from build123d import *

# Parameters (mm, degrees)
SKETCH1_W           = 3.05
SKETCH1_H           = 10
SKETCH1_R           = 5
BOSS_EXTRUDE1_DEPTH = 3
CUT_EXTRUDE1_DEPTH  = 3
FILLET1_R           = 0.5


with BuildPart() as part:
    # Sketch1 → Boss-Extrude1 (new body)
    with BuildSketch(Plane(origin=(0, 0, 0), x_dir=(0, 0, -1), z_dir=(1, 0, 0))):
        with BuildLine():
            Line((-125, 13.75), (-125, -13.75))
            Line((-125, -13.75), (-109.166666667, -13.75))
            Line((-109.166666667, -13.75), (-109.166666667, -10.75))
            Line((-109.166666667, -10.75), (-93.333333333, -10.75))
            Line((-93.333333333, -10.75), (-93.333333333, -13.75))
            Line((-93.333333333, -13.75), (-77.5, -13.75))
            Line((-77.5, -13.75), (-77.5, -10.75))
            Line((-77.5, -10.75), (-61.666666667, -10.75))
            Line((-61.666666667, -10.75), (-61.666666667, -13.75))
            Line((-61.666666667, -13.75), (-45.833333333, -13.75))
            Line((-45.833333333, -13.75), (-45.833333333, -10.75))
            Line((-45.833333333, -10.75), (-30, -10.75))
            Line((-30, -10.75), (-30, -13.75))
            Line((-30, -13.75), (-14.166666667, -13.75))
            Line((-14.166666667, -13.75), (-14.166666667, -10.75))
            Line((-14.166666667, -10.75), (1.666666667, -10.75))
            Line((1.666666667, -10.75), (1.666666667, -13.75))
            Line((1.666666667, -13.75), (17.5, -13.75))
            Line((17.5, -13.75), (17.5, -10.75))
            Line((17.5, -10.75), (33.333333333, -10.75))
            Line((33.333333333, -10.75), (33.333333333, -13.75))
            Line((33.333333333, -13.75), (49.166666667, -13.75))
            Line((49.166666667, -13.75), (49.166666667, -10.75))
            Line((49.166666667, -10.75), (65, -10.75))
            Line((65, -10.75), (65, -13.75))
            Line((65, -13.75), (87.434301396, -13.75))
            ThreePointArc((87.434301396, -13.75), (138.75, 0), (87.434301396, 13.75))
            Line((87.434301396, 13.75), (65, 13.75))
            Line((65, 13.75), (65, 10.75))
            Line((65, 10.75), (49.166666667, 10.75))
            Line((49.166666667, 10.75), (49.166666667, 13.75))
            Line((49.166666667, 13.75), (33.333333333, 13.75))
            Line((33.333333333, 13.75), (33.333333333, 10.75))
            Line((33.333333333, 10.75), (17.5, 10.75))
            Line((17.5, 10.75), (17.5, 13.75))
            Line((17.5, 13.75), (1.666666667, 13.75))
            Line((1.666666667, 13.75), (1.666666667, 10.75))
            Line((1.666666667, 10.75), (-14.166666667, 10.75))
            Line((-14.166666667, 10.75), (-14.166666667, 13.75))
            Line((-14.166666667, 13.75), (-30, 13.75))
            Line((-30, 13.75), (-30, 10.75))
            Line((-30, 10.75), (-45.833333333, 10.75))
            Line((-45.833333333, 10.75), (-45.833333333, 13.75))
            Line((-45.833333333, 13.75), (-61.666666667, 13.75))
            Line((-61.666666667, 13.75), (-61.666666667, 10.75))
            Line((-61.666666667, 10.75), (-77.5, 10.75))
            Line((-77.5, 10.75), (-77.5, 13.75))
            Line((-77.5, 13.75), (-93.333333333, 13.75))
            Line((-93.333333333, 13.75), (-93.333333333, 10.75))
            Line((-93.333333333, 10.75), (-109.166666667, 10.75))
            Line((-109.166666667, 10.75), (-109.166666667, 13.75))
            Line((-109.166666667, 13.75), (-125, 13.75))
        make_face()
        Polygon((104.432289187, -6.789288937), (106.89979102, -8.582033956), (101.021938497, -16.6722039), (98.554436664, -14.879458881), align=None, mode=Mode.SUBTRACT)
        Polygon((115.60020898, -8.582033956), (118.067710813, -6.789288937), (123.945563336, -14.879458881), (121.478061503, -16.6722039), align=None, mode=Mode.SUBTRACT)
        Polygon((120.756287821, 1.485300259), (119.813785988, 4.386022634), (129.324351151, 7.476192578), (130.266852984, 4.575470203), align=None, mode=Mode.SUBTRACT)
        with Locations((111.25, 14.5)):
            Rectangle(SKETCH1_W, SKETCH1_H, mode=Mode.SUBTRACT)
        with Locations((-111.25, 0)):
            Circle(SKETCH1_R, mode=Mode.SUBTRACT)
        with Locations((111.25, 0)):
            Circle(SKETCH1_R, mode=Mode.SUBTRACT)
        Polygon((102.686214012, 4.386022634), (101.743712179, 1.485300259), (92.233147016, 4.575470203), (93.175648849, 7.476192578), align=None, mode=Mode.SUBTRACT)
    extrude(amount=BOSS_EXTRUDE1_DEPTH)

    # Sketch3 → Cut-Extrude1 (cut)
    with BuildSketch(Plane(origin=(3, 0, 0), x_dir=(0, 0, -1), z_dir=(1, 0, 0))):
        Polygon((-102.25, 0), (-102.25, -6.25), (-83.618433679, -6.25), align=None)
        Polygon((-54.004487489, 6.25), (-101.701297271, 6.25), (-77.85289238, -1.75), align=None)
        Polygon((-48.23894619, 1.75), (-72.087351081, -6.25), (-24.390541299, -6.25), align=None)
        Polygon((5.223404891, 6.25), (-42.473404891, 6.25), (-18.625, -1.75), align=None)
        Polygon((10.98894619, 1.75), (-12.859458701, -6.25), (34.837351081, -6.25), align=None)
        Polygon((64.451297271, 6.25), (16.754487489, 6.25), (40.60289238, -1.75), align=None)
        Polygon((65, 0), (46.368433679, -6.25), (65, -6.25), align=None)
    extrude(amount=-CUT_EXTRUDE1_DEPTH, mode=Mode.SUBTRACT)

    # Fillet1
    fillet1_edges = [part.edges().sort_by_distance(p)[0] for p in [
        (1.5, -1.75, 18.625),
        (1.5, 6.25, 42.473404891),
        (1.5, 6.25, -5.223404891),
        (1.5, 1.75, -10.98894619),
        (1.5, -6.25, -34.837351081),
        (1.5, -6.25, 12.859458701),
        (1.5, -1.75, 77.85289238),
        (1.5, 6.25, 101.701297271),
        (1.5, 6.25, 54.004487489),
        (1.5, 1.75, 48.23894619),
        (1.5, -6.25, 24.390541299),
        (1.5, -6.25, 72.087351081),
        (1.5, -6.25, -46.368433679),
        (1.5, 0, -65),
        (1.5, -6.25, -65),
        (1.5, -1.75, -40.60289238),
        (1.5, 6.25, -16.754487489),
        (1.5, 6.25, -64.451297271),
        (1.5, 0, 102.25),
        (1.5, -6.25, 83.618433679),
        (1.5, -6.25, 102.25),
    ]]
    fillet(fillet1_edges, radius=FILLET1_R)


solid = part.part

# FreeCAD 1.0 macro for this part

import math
import FreeCAD as App
import Part
import Sketcher

V = App.Vector
Q = App.Units.Quantity


def edges_at(feature, points):
    """Names of the edges that pass closest to the given points."""
    edges = feature.Shape.Edges
    near = lambda p: min(range(len(edges)), key=lambda i: edges[i].distToShape(Part.Vertex(*p))[0])
    return sorted({f"Edge{near(p) + 1}" for p in points})


def add_polygon(sketch, points):
    """Adds a closed chain of lines whose ends are joined by coincident constraints."""
    first, n = sketch.GeometryCount, len(points)
    for a, b in zip(points, points[1:] + points[:1]):
        sketch.addGeometry(Part.LineSegment(App.Vector(*a, 0), App.Vector(*b, 0)), False)
    for i in range(n):
        sketch.addConstraint(Sketcher.Constraint("Coincident", first + i, 2, first + (i + 1) % n, 1))

doc = App.newDocument("Part")
params = doc.addObject("Spreadsheet::Sheet", "Params")
for row, (alias, value) in enumerate([
    ("sketch1_diameter", "10 mm"),
    ("sketch1_radius", "27.5 mm"),
    ("sketch1_width", "3 mm"),
    ("sketch1_width2", "10 mm"),
    ("sketch1_length", "10 mm"),
    ("pad1_length", "3 mm"),
    ("sketch2_width", "6.25 mm"),
    ("pocket1_length", "3 mm"),
    ("fillet_radius", "0.5 mm"),
], start=1):
    params.set(f"A{row}", alias)
    params.set(f"B{row}", "=" + value)
    params.setAlias(f"B{row}", alias)

body = doc.addObject("PartDesign::Body", "Body")

# Sketch on YZ plane
sketch1 = doc.addObject("Sketcher::SketchObject", "Sketch")
body.addObject(sketch1)
sketch1.AttachmentSupport = (doc.YZ_Plane, [""])
sketch1.MapMode = "FlatFace"
sketch1.addGeometry(Part.LineSegment(V(13.8, 125, 0), V(-13.8, 125, 0)), False)  # 0
sketch1.addGeometry(Part.LineSegment(V(-13.8, 125, 0), V(-13.8, 109.2, 0)), False)  # 1
sketch1.addGeometry(Part.LineSegment(V(-13.8, 109.2, 0), V(-10.8, 109.2, 0)), False)  # 2
sketch1.addGeometry(Part.LineSegment(V(-10.8, 109.2, 0), V(-10.8, 93.3, 0)), False)  # 3
sketch1.addGeometry(Part.LineSegment(V(-10.8, 93.3, 0), V(-13.8, 93.3, 0)), False)  # 4
sketch1.addGeometry(Part.LineSegment(V(-13.8, 93.3, 0), V(-13.8, 77.5, 0)), False)  # 5
sketch1.addGeometry(Part.LineSegment(V(-13.8, 77.5, 0), V(-10.8, 77.5, 0)), False)  # 6
sketch1.addGeometry(Part.LineSegment(V(-10.8, 77.5, 0), V(-10.8, 61.7, 0)), False)  # 7
sketch1.addGeometry(Part.LineSegment(V(-10.8, 61.7, 0), V(-13.8, 61.7, 0)), False)  # 8
sketch1.addGeometry(Part.LineSegment(V(-13.8, 61.7, 0), V(-13.8, 45.8, 0)), False)  # 9
sketch1.addGeometry(Part.LineSegment(V(-13.8, 45.8, 0), V(-10.8, 45.8, 0)), False)  # 10
sketch1.addGeometry(Part.LineSegment(V(-10.8, 45.8, 0), V(-10.8, 30, 0)), False)  # 11
sketch1.addGeometry(Part.LineSegment(V(-10.8, 30, 0), V(-13.8, 30, 0)), False)  # 12
sketch1.addGeometry(Part.LineSegment(V(-13.8, 30, 0), V(-13.8, 14.2, 0)), False)  # 13
sketch1.addGeometry(Part.LineSegment(V(-13.8, 14.2, 0), V(-10.8, 14.2, 0)), False)  # 14
sketch1.addGeometry(Part.LineSegment(V(-10.8, 14.2, 0), V(-10.8, -1.7, 0)), False)  # 15
sketch1.addGeometry(Part.LineSegment(V(-10.8, -1.7, 0), V(-13.8, -1.7, 0)), False)  # 16
sketch1.addGeometry(Part.LineSegment(V(-13.8, -1.7, 0), V(-13.8, -17.5, 0)), False)  # 17
sketch1.addGeometry(Part.LineSegment(V(-13.8, -17.5, 0), V(-10.8, -17.5, 0)), False)  # 18
sketch1.addGeometry(Part.LineSegment(V(-10.8, -17.5, 0), V(-10.8, -33.3, 0)), False)  # 19
sketch1.addGeometry(Part.LineSegment(V(-10.8, -33.3, 0), V(-13.8, -33.3, 0)), False)  # 20
sketch1.addGeometry(Part.LineSegment(V(-13.8, -33.3, 0), V(-13.8, -49.2, 0)), False)  # 21
sketch1.addGeometry(Part.LineSegment(V(-13.8, -49.2, 0), V(-10.8, -49.2, 0)), False)  # 22
sketch1.addGeometry(Part.LineSegment(V(-10.8, -49.2, 0), V(-10.8, -65, 0)), False)  # 23
sketch1.addGeometry(Part.LineSegment(V(-10.8, -65, 0), V(-13.8, -65, 0)), False)  # 24
sketch1.addGeometry(Part.LineSegment(V(-13.8, -65, 0), V(-13.8, -87.4, 0)), False)  # 25
sketch1.addGeometry(Part.ArcOfCircle(Part.Circle(V(0, -111.2, 0), V(0, 0, 1), 27.5), math.radians(120), math.radians(420)), False)  # 26
sketch1.addGeometry(Part.LineSegment(V(13.8, -87.4, 0), V(13.8, -65, 0)), False)  # 27
sketch1.addGeometry(Part.LineSegment(V(13.8, -65, 0), V(10.8, -65, 0)), False)  # 28
sketch1.addGeometry(Part.LineSegment(V(10.8, -65, 0), V(10.8, -49.2, 0)), False)  # 29
sketch1.addGeometry(Part.LineSegment(V(10.8, -49.2, 0), V(13.8, -49.2, 0)), False)  # 30
sketch1.addGeometry(Part.LineSegment(V(13.8, -49.2, 0), V(13.8, -33.3, 0)), False)  # 31
sketch1.addGeometry(Part.LineSegment(V(13.8, -33.3, 0), V(10.8, -33.3, 0)), False)  # 32
sketch1.addGeometry(Part.LineSegment(V(10.8, -33.3, 0), V(10.8, -17.5, 0)), False)  # 33
sketch1.addGeometry(Part.LineSegment(V(10.8, -17.5, 0), V(13.8, -17.5, 0)), False)  # 34
sketch1.addGeometry(Part.LineSegment(V(13.8, -17.5, 0), V(13.8, -1.7, 0)), False)  # 35
sketch1.addGeometry(Part.LineSegment(V(13.8, -1.7, 0), V(10.8, -1.7, 0)), False)  # 36
sketch1.addGeometry(Part.LineSegment(V(10.8, -1.7, 0), V(10.8, 14.2, 0)), False)  # 37
sketch1.addGeometry(Part.LineSegment(V(10.8, 14.2, 0), V(13.8, 14.2, 0)), False)  # 38
sketch1.addGeometry(Part.LineSegment(V(13.8, 14.2, 0), V(13.8, 30, 0)), False)  # 39
sketch1.addGeometry(Part.LineSegment(V(13.8, 30, 0), V(10.8, 30, 0)), False)  # 40
sketch1.addGeometry(Part.LineSegment(V(10.8, 30, 0), V(10.8, 45.8, 0)), False)  # 41
sketch1.addGeometry(Part.LineSegment(V(10.8, 45.8, 0), V(13.8, 45.8, 0)), False)  # 42
sketch1.addGeometry(Part.LineSegment(V(13.8, 45.8, 0), V(13.8, 61.7, 0)), False)  # 43
sketch1.addGeometry(Part.LineSegment(V(13.8, 61.7, 0), V(10.8, 61.7, 0)), False)  # 44
sketch1.addGeometry(Part.LineSegment(V(10.8, 61.7, 0), V(10.8, 77.5, 0)), False)  # 45
sketch1.addGeometry(Part.LineSegment(V(10.8, 77.5, 0), V(13.8, 77.5, 0)), False)  # 46
sketch1.addGeometry(Part.LineSegment(V(13.8, 77.5, 0), V(13.8, 93.3, 0)), False)  # 47
sketch1.addGeometry(Part.LineSegment(V(13.8, 93.3, 0), V(10.8, 93.3, 0)), False)  # 48
sketch1.addGeometry(Part.LineSegment(V(10.8, 93.3, 0), V(10.8, 109.2, 0)), False)  # 49
sketch1.addGeometry(Part.LineSegment(V(10.8, 109.2, 0), V(13.8, 109.2, 0)), False)  # 50
sketch1.addGeometry(Part.LineSegment(V(13.8, 109.2, 0), V(13.8, 125, 0)), False)  # 51
sketch1.addGeometry(Part.Circle(V(0, 111.2, 0), V(0, 0, 1), 5), False)  # 52
add_polygon(sketch1, [(-14.9, -98.6), (-6.8, -104.4), (-8.6, -106.9), (-16.7, -101)])  # lines 53-56
add_polygon(sketch1, [(-16.7, -121.5), (-8.6, -115.6), (-6.8, -118.1), (-14.9, -123.9)])  # lines 57-60
sketch1.addGeometry(Part.Circle(V(0, -111.2, 0), V(0, 0, 1), 5), False)  # 61
add_polygon(sketch1, [(7.5, -93.2), (4.4, -102.7), (1.5, -101.7), (4.6, -92.2)])  # lines 62-65
add_polygon(sketch1, [(4.6, -130.3), (1.5, -120.8), (4.4, -119.8), (7.5, -129.3)])  # lines 66-69
add_polygon(sketch1, [(9.5, -112.8), (9.5, -109.7), (19.5, -109.7), (19.5, -112.8)])  # lines 70-73
sketch1.addConstraint(Sketcher.Constraint("Coincident", 0, 2, 1, 1))
sketch1.addConstraint(Sketcher.Constraint("Coincident", 1, 2, 2, 1))
sketch1.addConstraint(Sketcher.Constraint("Coincident", 2, 2, 3, 1))
sketch1.addConstraint(Sketcher.Constraint("Coincident", 3, 2, 4, 1))
sketch1.addConstraint(Sketcher.Constraint("Coincident", 4, 2, 5, 1))
sketch1.addConstraint(Sketcher.Constraint("Coincident", 5, 2, 6, 1))
sketch1.addConstraint(Sketcher.Constraint("Coincident", 6, 2, 7, 1))
sketch1.addConstraint(Sketcher.Constraint("Coincident", 7, 2, 8, 1))
sketch1.addConstraint(Sketcher.Constraint("Coincident", 8, 2, 9, 1))
sketch1.addConstraint(Sketcher.Constraint("Coincident", 9, 2, 10, 1))
sketch1.addConstraint(Sketcher.Constraint("Coincident", 10, 2, 11, 1))
sketch1.addConstraint(Sketcher.Constraint("Coincident", 11, 2, 12, 1))
sketch1.addConstraint(Sketcher.Constraint("Coincident", 12, 2, 13, 1))
sketch1.addConstraint(Sketcher.Constraint("Coincident", 13, 2, 14, 1))
sketch1.addConstraint(Sketcher.Constraint("Coincident", 14, 2, 15, 1))
sketch1.addConstraint(Sketcher.Constraint("Coincident", 15, 2, 16, 1))
sketch1.addConstraint(Sketcher.Constraint("Coincident", 16, 2, 17, 1))
sketch1.addConstraint(Sketcher.Constraint("Coincident", 17, 2, 18, 1))
sketch1.addConstraint(Sketcher.Constraint("Coincident", 18, 2, 19, 1))
sketch1.addConstraint(Sketcher.Constraint("Coincident", 19, 2, 20, 1))
sketch1.addConstraint(Sketcher.Constraint("Coincident", 20, 2, 21, 1))
sketch1.addConstraint(Sketcher.Constraint("Coincident", 21, 2, 22, 1))
sketch1.addConstraint(Sketcher.Constraint("Coincident", 22, 2, 23, 1))
sketch1.addConstraint(Sketcher.Constraint("Coincident", 23, 2, 24, 1))
sketch1.addConstraint(Sketcher.Constraint("Coincident", 24, 2, 25, 1))
sketch1.addConstraint(Sketcher.Constraint("Coincident", 25, 2, 26, 1))
sketch1.addConstraint(Sketcher.Constraint("Coincident", 26, 2, 27, 1))
sketch1.addConstraint(Sketcher.Constraint("Coincident", 27, 2, 28, 1))
sketch1.addConstraint(Sketcher.Constraint("Coincident", 28, 2, 29, 1))
sketch1.addConstraint(Sketcher.Constraint("Coincident", 29, 2, 30, 1))
sketch1.addConstraint(Sketcher.Constraint("Coincident", 30, 2, 31, 1))
sketch1.addConstraint(Sketcher.Constraint("Coincident", 31, 2, 32, 1))
sketch1.addConstraint(Sketcher.Constraint("Coincident", 32, 2, 33, 1))
sketch1.addConstraint(Sketcher.Constraint("Coincident", 33, 2, 34, 1))
sketch1.addConstraint(Sketcher.Constraint("Coincident", 34, 2, 35, 1))
sketch1.addConstraint(Sketcher.Constraint("Coincident", 35, 2, 36, 1))
sketch1.addConstraint(Sketcher.Constraint("Coincident", 36, 2, 37, 1))
sketch1.addConstraint(Sketcher.Constraint("Coincident", 37, 2, 38, 1))
sketch1.addConstraint(Sketcher.Constraint("Coincident", 38, 2, 39, 1))
sketch1.addConstraint(Sketcher.Constraint("Coincident", 39, 2, 40, 1))
sketch1.addConstraint(Sketcher.Constraint("Coincident", 40, 2, 41, 1))
sketch1.addConstraint(Sketcher.Constraint("Coincident", 41, 2, 42, 1))
sketch1.addConstraint(Sketcher.Constraint("Coincident", 42, 2, 43, 1))
sketch1.addConstraint(Sketcher.Constraint("Coincident", 43, 2, 44, 1))
sketch1.addConstraint(Sketcher.Constraint("Coincident", 44, 2, 45, 1))
sketch1.addConstraint(Sketcher.Constraint("Coincident", 45, 2, 46, 1))
sketch1.addConstraint(Sketcher.Constraint("Coincident", 46, 2, 47, 1))
sketch1.addConstraint(Sketcher.Constraint("Coincident", 47, 2, 48, 1))
sketch1.addConstraint(Sketcher.Constraint("Coincident", 48, 2, 49, 1))
sketch1.addConstraint(Sketcher.Constraint("Coincident", 49, 2, 50, 1))
sketch1.addConstraint(Sketcher.Constraint("Coincident", 50, 2, 51, 1))
sketch1.addConstraint(Sketcher.Constraint("Coincident", 51, 2, 0, 1))
sketch1.addConstraint(Sketcher.Constraint("Horizontal", 0))
sketch1.addConstraint(Sketcher.Constraint("Vertical", 1))
sketch1.addConstraint(Sketcher.Constraint("Horizontal", 2))
sketch1.addConstraint(Sketcher.Constraint("Vertical", 3))
sketch1.addConstraint(Sketcher.Constraint("Horizontal", 4))
sketch1.addConstraint(Sketcher.Constraint("Vertical", 5))
sketch1.addConstraint(Sketcher.Constraint("Horizontal", 6))
sketch1.addConstraint(Sketcher.Constraint("Vertical", 7))
sketch1.addConstraint(Sketcher.Constraint("Horizontal", 8))
sketch1.addConstraint(Sketcher.Constraint("Vertical", 9))
sketch1.addConstraint(Sketcher.Constraint("Horizontal", 10))
sketch1.addConstraint(Sketcher.Constraint("Vertical", 11))
sketch1.addConstraint(Sketcher.Constraint("Horizontal", 12))
sketch1.addConstraint(Sketcher.Constraint("Vertical", 13))
sketch1.addConstraint(Sketcher.Constraint("Horizontal", 14))
sketch1.addConstraint(Sketcher.Constraint("Vertical", 15))
sketch1.addConstraint(Sketcher.Constraint("Horizontal", 16))
sketch1.addConstraint(Sketcher.Constraint("Vertical", 17))
sketch1.addConstraint(Sketcher.Constraint("Horizontal", 18))
sketch1.addConstraint(Sketcher.Constraint("Vertical", 19))
sketch1.addConstraint(Sketcher.Constraint("Horizontal", 20))
sketch1.addConstraint(Sketcher.Constraint("Vertical", 21))
sketch1.addConstraint(Sketcher.Constraint("Horizontal", 22))
sketch1.addConstraint(Sketcher.Constraint("Vertical", 23))
sketch1.addConstraint(Sketcher.Constraint("Horizontal", 24))
sketch1.addConstraint(Sketcher.Constraint("Vertical", 25))
sketch1.addConstraint(Sketcher.Constraint("Vertical", 27))
sketch1.addConstraint(Sketcher.Constraint("Horizontal", 28))
sketch1.addConstraint(Sketcher.Constraint("Vertical", 29))
sketch1.addConstraint(Sketcher.Constraint("Horizontal", 30))
sketch1.addConstraint(Sketcher.Constraint("Vertical", 31))
sketch1.addConstraint(Sketcher.Constraint("Horizontal", 32))
sketch1.addConstraint(Sketcher.Constraint("Vertical", 33))
sketch1.addConstraint(Sketcher.Constraint("Horizontal", 34))
sketch1.addConstraint(Sketcher.Constraint("Vertical", 35))
sketch1.addConstraint(Sketcher.Constraint("Horizontal", 36))
sketch1.addConstraint(Sketcher.Constraint("Vertical", 37))
sketch1.addConstraint(Sketcher.Constraint("Horizontal", 38))
sketch1.addConstraint(Sketcher.Constraint("Vertical", 39))
sketch1.addConstraint(Sketcher.Constraint("Horizontal", 40))
sketch1.addConstraint(Sketcher.Constraint("Vertical", 41))
sketch1.addConstraint(Sketcher.Constraint("Horizontal", 42))
sketch1.addConstraint(Sketcher.Constraint("Vertical", 43))
sketch1.addConstraint(Sketcher.Constraint("Horizontal", 44))
sketch1.addConstraint(Sketcher.Constraint("Vertical", 45))
sketch1.addConstraint(Sketcher.Constraint("Horizontal", 46))
sketch1.addConstraint(Sketcher.Constraint("Vertical", 47))
sketch1.addConstraint(Sketcher.Constraint("Horizontal", 48))
sketch1.addConstraint(Sketcher.Constraint("Vertical", 49))
sketch1.addConstraint(Sketcher.Constraint("Horizontal", 50))
sketch1.addConstraint(Sketcher.Constraint("Vertical", 51))
sketch1.addConstraint(Sketcher.Constraint("Vertical", 70))
sketch1.addConstraint(Sketcher.Constraint("Horizontal", 71))
sketch1.addConstraint(Sketcher.Constraint("Vertical", 72))
sketch1.addConstraint(Sketcher.Constraint("Horizontal", 73))
sketch1.addConstraint(Sketcher.Constraint("Coincident", 61, 3, 26, 3))
sketch1.addConstraint(Sketcher.Constraint("Equal", 52, 61))
sketch1.addConstraint(Sketcher.Constraint("Symmetric", 26, 3, 52, 3, -1, 1))
sketch1.addConstraint(Sketcher.Constraint("Symmetric", 25, 2, 26, 2, -2))
sketch1.addConstraint(Sketcher.Constraint("Symmetric", 23, 2, 28, 2, -2))
sketch1.addConstraint(Sketcher.Constraint("Symmetric", 21, 2, 30, 2, -2))
sketch1.addConstraint(Sketcher.Constraint("Symmetric", 19, 2, 32, 2, -2))
sketch1.addConstraint(Sketcher.Constraint("Symmetric", 17, 2, 34, 2, -2))
sketch1.addConstraint(Sketcher.Constraint("Symmetric", 15, 2, 36, 2, -2))
sketch1.addConstraint(Sketcher.Constraint("Symmetric", 13, 2, 38, 2, -2))
sketch1.addConstraint(Sketcher.Constraint("Symmetric", 11, 2, 40, 2, -2))
sketch1.addConstraint(Sketcher.Constraint("Symmetric", 9, 2, 42, 2, -2))
sketch1.addConstraint(Sketcher.Constraint("Symmetric", 7, 2, 44, 2, -2))
sketch1.addConstraint(Sketcher.Constraint("Symmetric", 5, 2, 46, 2, -2))
sketch1.addConstraint(Sketcher.Constraint("Symmetric", 3, 2, 48, 2, -2))
sketch1.addConstraint(Sketcher.Constraint("Symmetric", 1, 2, 50, 2, -2))
sketch1.addConstraint(Sketcher.Constraint("Perpendicular", 53, 54))
sketch1.addConstraint(Sketcher.Constraint("Perpendicular", 54, 55))
sketch1.addConstraint(Sketcher.Constraint("Perpendicular", 55, 56))
sketch1.addConstraint(Sketcher.Constraint("Perpendicular", 57, 58))
sketch1.addConstraint(Sketcher.Constraint("Perpendicular", 58, 59))
sketch1.addConstraint(Sketcher.Constraint("Perpendicular", 59, 60))
sketch1.addConstraint(Sketcher.Constraint("Perpendicular", 62, 63))
sketch1.addConstraint(Sketcher.Constraint("Perpendicular", 63, 64))
sketch1.addConstraint(Sketcher.Constraint("Perpendicular", 64, 65))
sketch1.addConstraint(Sketcher.Constraint("Perpendicular", 66, 67))
sketch1.addConstraint(Sketcher.Constraint("Perpendicular", 67, 68))
sketch1.addConstraint(Sketcher.Constraint("Perpendicular", 68, 69))
sketch1.addConstraint(Sketcher.Constraint("Vertical", 1, 2, 4, 2))
sketch1.addConstraint(Sketcher.Constraint("Vertical", 3, 2, 6, 2))
sketch1.addConstraint(Sketcher.Constraint("Vertical", 5, 2, 8, 2))
sketch1.addConstraint(Sketcher.Constraint("Vertical", 7, 2, 10, 2))
sketch1.addConstraint(Sketcher.Constraint("Vertical", 9, 2, 12, 2))
sketch1.addConstraint(Sketcher.Constraint("Vertical", 11, 2, 14, 2))
sketch1.addConstraint(Sketcher.Constraint("Vertical", 13, 2, 16, 2))
sketch1.addConstraint(Sketcher.Constraint("Vertical", 15, 2, 18, 2))
sketch1.addConstraint(Sketcher.Constraint("Vertical", 17, 2, 20, 2))
sketch1.addConstraint(Sketcher.Constraint("Vertical", 19, 2, 22, 2))
sketch1.addConstraint(Sketcher.Constraint("Vertical", 21, 2, 24, 2))
sketch1.addConstraint(Sketcher.Constraint("Vertical", 54, 2, 57, 2))
sketch1.addConstraint(Sketcher.Constraint("Vertical", 53, 2, 58, 2))
sketch1.addConstraint(Sketcher.Constraint("Vertical", 56, 2, 59, 2))
sketch1.addConstraint(Sketcher.Constraint("Vertical", 63, 2, 66, 2))
sketch1.addConstraint(Sketcher.Constraint("Vertical", 62, 2, 67, 2))
sketch1.addConstraint(Sketcher.Constraint("Vertical", 65, 2, 68, 2))
sketch1.addConstraint(Sketcher.Constraint("Equal", 1, 3))
sketch1.addConstraint(Sketcher.Constraint("Equal", 3, 5))
sketch1.addConstraint(Sketcher.Constraint("Equal", 5, 7))
sketch1.addConstraint(Sketcher.Constraint("Equal", 7, 9))
sketch1.addConstraint(Sketcher.Constraint("Equal", 9, 11))
sketch1.addConstraint(Sketcher.Constraint("Equal", 11, 13))
sketch1.addConstraint(Sketcher.Constraint("Equal", 13, 15))
sketch1.addConstraint(Sketcher.Constraint("Equal", 15, 17))
sketch1.addConstraint(Sketcher.Constraint("Equal", 17, 19))
sketch1.addConstraint(Sketcher.Constraint("Equal", 19, 21))
sketch1.addConstraint(Sketcher.Constraint("Equal", 21, 23))
sketch1.addConstraint(Sketcher.Constraint("Equal", 55, 57))
sketch1.addConstraint(Sketcher.Constraint("Equal", 59, 62))
sketch1.addConstraint(Sketcher.Constraint("Equal", 60, 63))
sketch1.addConstraint(Sketcher.Constraint("Equal", 64, 66))
sketch1.addConstraint(Sketcher.Constraint("Diameter", 52, 10.0))
sketch1.addConstraint(Sketcher.Constraint("Radius", 26, 27.5))
sketch1.addConstraint(Sketcher.Constraint("DistanceX", 2, 1, 2, 2, 3.0))
sketch1.addConstraint(Sketcher.Constraint("DistanceX", 71, 1, 71, 2, 10.0))
sketch1.addConstraint(Sketcher.Constraint("Angle", 53, Q("-36 deg")))
sketch1.addConstraint(Sketcher.Constraint("Angle", 62, Q("-108 deg")))
sketch1.addConstraint(Sketcher.Constraint("Distance", 53, 10.0))
sketch1.addConstraint(Sketcher.Constraint("DistanceX", 0, 2, 0, 1, 27.5))
sketch1.addConstraint(Sketcher.Constraint("DistanceY", -1, 1, 0, 2, 125.0))
sketch1.addConstraint(Sketcher.Constraint("DistanceY", -1, 1, 11, 2, 30.0))
sketch1.addConstraint(Sketcher.Constraint("DistanceY", 70, 1, 70, 2, 3.05))
sketch1.addConstraint(Sketcher.Constraint("DistanceX", -1, 1, 70, 2, 9.5))
sketch1.addConstraint(Sketcher.Constraint("Distance", 54, 3.05))
sketch1.addConstraint(Sketcher.Constraint("DistanceY", 26, 3, -1, 1, 111.25))
sketch1.addConstraint(Sketcher.Constraint("DistanceY", 70, 2, -1, 1, 109.725))
sketch1.addConstraint(Sketcher.Constraint("DistanceX", -1, 1, 63, 2, 1.4853))
sketch1.addConstraint(Sketcher.Constraint("DistanceX", 53, 2, -1, 1, 6.789289))
sketch1.addConstraint(Sketcher.Constraint("DistanceY", 53, 2, -1, 1, 104.432289))
sketch1.addConstraint(Sketcher.Constraint("DistanceY", 57, 2, -1, 1, 115.600209))
sketch1.addConstraint(Sketcher.Constraint("DistanceY", 65, 2, -1, 1, 93.175649))
sketch1.addConstraint(Sketcher.Constraint("DistanceY", 68, 2, -1, 1, 129.324351))
sketch1.setExpression("Constraints[187]", "Params.sketch1_diameter")
sketch1.setExpression("Constraints[188]", "Params.sketch1_radius")
sketch1.setExpression("Constraints[189]", "Params.sketch1_width")
sketch1.setExpression("Constraints[190]", "Params.sketch1_width2")
sketch1.setExpression("Constraints[193]", "Params.sketch1_length")
pad1 = doc.addObject("PartDesign::Pad", "Pad")
body.addObject(pad1)
pad1.Profile = sketch1
pad1.setExpression("Length", "Params.pad1_length")

# Sketch on YZ plane
sketch2 = doc.addObject("Sketcher::SketchObject", "Sketch001")
body.addObject(sketch2)
sketch2.AttachmentSupport = (doc.YZ_Plane, [""])
sketch2.MapMode = "FlatFace"
sketch2.AttachmentOffset = App.Placement(V(0, 0, 3), App.Rotation())
add_polygon(sketch2, [(0, 102), (-6, 102), (-6, 84)])  # lines 0-2
add_polygon(sketch2, [(6, 54), (6, 102), (-2, 78)])  # lines 3-5
add_polygon(sketch2, [(2, 48), (-6, 72), (-6, 24)])  # lines 6-8
add_polygon(sketch2, [(6, -5), (6, 42), (-2, 19)])  # lines 9-11
add_polygon(sketch2, [(2, -11), (-6, 13), (-6, -35)])  # lines 12-14
add_polygon(sketch2, [(6, -64), (6, -17), (-2, -41)])  # lines 15-17
add_polygon(sketch2, [(0, -65), (-6, -46), (-6, -65)])  # lines 18-20
sketch2.addConstraint(Sketcher.Constraint("Horizontal", 0))
sketch2.addConstraint(Sketcher.Constraint("Vertical", 1))
sketch2.addConstraint(Sketcher.Constraint("Vertical", 3))
sketch2.addConstraint(Sketcher.Constraint("Vertical", 7))
sketch2.addConstraint(Sketcher.Constraint("Vertical", 9))
sketch2.addConstraint(Sketcher.Constraint("Vertical", 13))
sketch2.addConstraint(Sketcher.Constraint("Vertical", 15))
sketch2.addConstraint(Sketcher.Constraint("Vertical", 19))
sketch2.addConstraint(Sketcher.Constraint("Horizontal", 20))
sketch2.addConstraint(Sketcher.Constraint("PointOnObject", 2, 2, -2))
sketch2.addConstraint(Sketcher.Constraint("PointOnObject", 20, 2, -2))
sketch2.addConstraint(Sketcher.Constraint("Parallel", 2, 4))
sketch2.addConstraint(Sketcher.Constraint("Parallel", 5, 6))
sketch2.addConstraint(Sketcher.Constraint("Parallel", 4, 8))
sketch2.addConstraint(Sketcher.Constraint("Parallel", 8, 10))
sketch2.addConstraint(Sketcher.Constraint("Parallel", 6, 11))
sketch2.addConstraint(Sketcher.Constraint("Parallel", 11, 12))
sketch2.addConstraint(Sketcher.Constraint("Parallel", 10, 14))
sketch2.addConstraint(Sketcher.Constraint("Parallel", 14, 16))
sketch2.addConstraint(Sketcher.Constraint("Parallel", 12, 17))
sketch2.addConstraint(Sketcher.Constraint("Parallel", 17, 18))
sketch2.addConstraint(Sketcher.Constraint("Vertical", 1, 2, 6, 2))
sketch2.addConstraint(Sketcher.Constraint("Vertical", 5, 2, 9, 2))
sketch2.addConstraint(Sketcher.Constraint("Vertical", 4, 2, 10, 2))
sketch2.addConstraint(Sketcher.Constraint("Vertical", 7, 2, 12, 2))
sketch2.addConstraint(Sketcher.Constraint("Vertical", 8, 2, 14, 2))
sketch2.addConstraint(Sketcher.Constraint("Vertical", 11, 2, 15, 2))
sketch2.addConstraint(Sketcher.Constraint("Vertical", 10, 2, 16, 2))
sketch2.addConstraint(Sketcher.Constraint("Vertical", 13, 2, 18, 2))
sketch2.addConstraint(Sketcher.Constraint("Equal", 3, 7))
sketch2.addConstraint(Sketcher.Constraint("Equal", 1, 19))
sketch2.addConstraint(Sketcher.Constraint("DistanceY", 19, 2, -1, 1, 65.0))
sketch2.addConstraint(Sketcher.Constraint("DistanceX", 4, 2, 3, 2, 8.0))
sketch2.addConstraint(Sketcher.Constraint("DistanceX", 0, 2, 0, 1, 6.25))
sketch2.addConstraint(Sketcher.Constraint("DistanceX", 0, 2, 3, 2, 12.5))
sketch2.addConstraint(Sketcher.Constraint("DistanceY", -1, 1, 0, 2, 102.25))
sketch2.addConstraint(Sketcher.Constraint("DistanceY", -1, 1, 10, 2, 18.625))
sketch2.addConstraint(Sketcher.Constraint("DistanceY", 3, 1, 3, 2, 47.69681))
sketch2.addConstraint(Sketcher.Constraint("DistanceY", -1, 1, 6, 2, 72.087351))
sketch2.addConstraint(Sketcher.Constraint("DistanceY", -1, 1, 12, 2, 12.859459))
sketch2.addConstraint(Sketcher.Constraint("DistanceY", 4, 2, 1, 2, 5.765541))
sketch2.addConstraint(Sketcher.Constraint("DistanceY", 15, 2, 14, 2, 5.765541))
sketch2.setExpression("Constraints[54]", "Params.sketch2_width")
pocket1 = doc.addObject("PartDesign::Pocket", "Pocket")
body.addObject(pocket1)
pocket1.Profile = sketch2
pocket1.setExpression("Length", "Params.pocket1_length")
doc.recompute()

fillet = doc.addObject("PartDesign::Fillet", "Fillet")
body.addObject(fillet)
fillet.Base = (pocket1, edges_at(pocket1, [
    (1.5, -1.75, 18.625),
    (1.5, 6.25, 42.473),
    (1.5, 6.25, -5.223),
    (1.5, 1.75, -10.989),
    (1.5, -6.25, -34.837),
    (1.5, -6.25, 12.859),
    (1.5, -1.75, 77.853),
    (1.5, 6.25, 101.701),
    (1.5, 6.25, 54.004),
    (1.5, 1.75, 48.239),
    (1.5, -6.25, 24.391),
    (1.5, -6.25, 72.087),
    (1.5, -6.25, -46.368),
    (1.5, 0, -65),
    (1.5, -6.25, -65),
    (1.5, -1.75, -40.603),
    (1.5, 6.25, -16.754),
    (1.5, 6.25, -64.451),
    (1.5, 0, 102.25),
    (1.5, -6.25, 83.618),
    (1.5, -6.25, 102.25),
]))
fillet.setExpression("Radius", "Params.fillet_radius")

doc.recompute()
